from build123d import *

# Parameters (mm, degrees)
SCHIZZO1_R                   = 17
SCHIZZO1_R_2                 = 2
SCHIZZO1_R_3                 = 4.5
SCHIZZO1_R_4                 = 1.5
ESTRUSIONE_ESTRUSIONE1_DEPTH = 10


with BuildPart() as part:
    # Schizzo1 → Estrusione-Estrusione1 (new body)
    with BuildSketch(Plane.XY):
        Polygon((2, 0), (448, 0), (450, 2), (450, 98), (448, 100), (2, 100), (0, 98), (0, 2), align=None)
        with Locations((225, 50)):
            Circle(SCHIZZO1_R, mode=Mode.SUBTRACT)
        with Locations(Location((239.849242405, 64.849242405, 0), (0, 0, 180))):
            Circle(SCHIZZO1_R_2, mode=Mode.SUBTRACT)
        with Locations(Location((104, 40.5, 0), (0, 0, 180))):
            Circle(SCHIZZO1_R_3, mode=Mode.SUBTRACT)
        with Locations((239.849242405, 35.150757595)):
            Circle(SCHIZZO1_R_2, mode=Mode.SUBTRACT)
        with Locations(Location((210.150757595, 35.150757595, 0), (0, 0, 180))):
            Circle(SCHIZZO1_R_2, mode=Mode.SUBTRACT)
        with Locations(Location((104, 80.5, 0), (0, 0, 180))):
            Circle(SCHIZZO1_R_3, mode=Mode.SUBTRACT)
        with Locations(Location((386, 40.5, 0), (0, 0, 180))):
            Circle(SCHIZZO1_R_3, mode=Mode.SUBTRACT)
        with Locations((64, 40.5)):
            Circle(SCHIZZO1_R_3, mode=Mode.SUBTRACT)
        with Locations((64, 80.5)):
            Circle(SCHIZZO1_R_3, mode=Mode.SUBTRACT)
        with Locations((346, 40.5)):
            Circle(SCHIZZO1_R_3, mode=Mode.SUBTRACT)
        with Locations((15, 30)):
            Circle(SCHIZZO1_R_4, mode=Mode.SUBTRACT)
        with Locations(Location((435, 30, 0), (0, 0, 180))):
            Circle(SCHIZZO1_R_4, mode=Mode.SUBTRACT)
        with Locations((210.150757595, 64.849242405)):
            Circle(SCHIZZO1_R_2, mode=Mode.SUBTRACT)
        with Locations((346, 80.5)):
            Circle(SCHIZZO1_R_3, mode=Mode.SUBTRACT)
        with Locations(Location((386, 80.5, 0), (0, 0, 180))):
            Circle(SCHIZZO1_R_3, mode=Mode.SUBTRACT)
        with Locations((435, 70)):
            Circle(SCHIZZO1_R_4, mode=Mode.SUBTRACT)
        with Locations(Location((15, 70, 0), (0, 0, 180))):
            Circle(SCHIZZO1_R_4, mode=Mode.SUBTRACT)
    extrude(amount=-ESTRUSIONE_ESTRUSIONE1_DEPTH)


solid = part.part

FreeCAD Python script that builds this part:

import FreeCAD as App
import Part
import Sketcher

doc = App.newDocument("Part")
body = doc.addObject("PartDesign::Body", "Body")

# Sketch on XY plane
sketch1 = doc.addObject("Sketcher::SketchObject", "Sketch")
body.addObject(sketch1)
sketch1.AttachmentSupport = (doc.XY_Plane, [""])
sketch1.MapMode = "FlatFace"
sketch1.addGeometry(Part.LineSegment(App.Vector(2, 0, 0), App.Vector(448, 0, 0)), False)
sketch1.addGeometry(Part.LineSegment(App.Vector(448, 0, 0), App.Vector(450, 2, 0)), False)
sketch1.addGeometry(Part.LineSegment(App.Vector(450, 2, 0), App.Vector(450, 98, 0)), False)
sketch1.addGeometry(Part.LineSegment(App.Vector(450, 98, 0), App.Vector(448, 100, 0)), False)
sketch1.addGeometry(Part.LineSegment(App.Vector(448, 100, 0), App.Vector(2, 100, 0)), False)
sketch1.addGeometry(Part.LineSegment(App.Vector(2, 100, 0), App.Vector(0, 98, 0)), False)
sketch1.addGeometry(Part.LineSegment(App.Vector(0, 98, 0), App.Vector(0, 2, 0)), False)
sketch1.addGeometry(Part.LineSegment(App.Vector(0, 2, 0), App.Vector(2, 0, 0)), False)
sketch1.addGeometry(Part.Circle(App.Vector(15, 30, 0), App.Vector(0, 0, 1), 1.5), False)
sketch1.addGeometry(Part.Circle(App.Vector(64, 40.5, 0), App.Vector(0, 0, 1), 4.5), False)
sketch1.addGeometry(Part.Circle(App.Vector(104, 40.5, 0), App.Vector(0, 0, 1), 4.5), False)
sketch1.addGeometry(Part.Circle(App.Vector(210.2, 35.2, 0), App.Vector(0, 0, 1), 2), False)
sketch1.addGeometry(Part.Circle(App.Vector(239.8, 35.2, 0), App.Vector(0, 0, 1), 2), False)
sketch1.addGeometry(Part.Circle(App.Vector(435, 30, 0), App.Vector(0, 0, 1), 1.5), False)
sketch1.addGeometry(Part.Circle(App.Vector(346, 40.5, 0), App.Vector(0, 0, 1), 4.5), False)
sketch1.addGeometry(Part.Circle(App.Vector(386, 40.5, 0), App.Vector(0, 0, 1), 4.5), False)
sketch1.addGeometry(Part.Circle(App.Vector(225, 50, 0), App.Vector(0, 0, 1), 17), False)
sketch1.addGeometry(Part.Circle(App.Vector(15, 70, 0), App.Vector(0, 0, 1), 1.5), False)
sketch1.addGeometry(Part.Circle(App.Vector(210.2, 64.8, 0), App.Vector(0, 0, 1), 2), False)
sketch1.addGeometry(Part.Circle(App.Vector(64, 80.5, 0), App.Vector(0, 0, 1), 4.5), False)
sketch1.addGeometry(Part.Circle(App.Vector(104, 80.5, 0), App.Vector(0, 0, 1), 4.5), False)
sketch1.addGeometry(Part.Circle(App.Vector(239.8, 64.8, 0), App.Vector(0, 0, 1), 2), False)
sketch1.addGeometry(Part.Circle(App.Vector(435, 70, 0), App.Vector(0, 0, 1), 1.5), False)
sketch1.addGeometry(Part.Circle(App.Vector(346, 80.5, 0), App.Vector(0, 0, 1), 4.5), False)
sketch1.addGeometry(Part.Circle(App.Vector(386, 80.5, 0), App.Vector(0, 0, 1), 4.5), False)
sketch1.addConstraint(Sketcher.Constraint("Coincident", 0, 2, 1, 1))
sketch1.addConstraint(Sketcher.Constraint("Coincident", 1, 2, 2, 1))
sketch1.addConstraint(Sketcher.Constraint("Coincident", 2, 2, 3, 1))
sketch1.addConstraint(Sketcher.Constraint("Coincident", 3, 2, 4, 1))
sketch1.addConstraint(Sketcher.Constraint("Coincident", 4, 2, 5, 1))
sketch1.addConstraint(Sketcher.Constraint("Coincident", 5, 2, 6, 1))
sketch1.addConstraint(Sketcher.Constraint("Coincident", 6, 2, 7, 1))
sketch1.addConstraint(Sketcher.Constraint("Coincident", 7, 2, 0, 1))
sketch1.addConstraint(Sketcher.Constraint("Horizontal", 0))
sketch1.addConstraint(Sketcher.Constraint("Vertical", 2))
sketch1.addConstraint(Sketcher.Constraint("Horizontal", 4))
sketch1.addConstraint(Sketcher.Constraint("Vertical", 6))
sketch1.addConstraint(Sketcher.Constraint("Equal", 9, 10))
sketch1.addConstraint(Sketcher.Constraint("Equal", 11, 12))
sketch1.addConstraint(Sketcher.Constraint("Equal", 8, 13))
sketch1.addConstraint(Sketcher.Constraint("Equal", 10, 14))
sketch1.addConstraint(Sketcher.Constraint("Equal", 14, 15))
sketch1.addConstraint(Sketcher.Constraint("Equal", 13, 17))
sketch1.addConstraint(Sketcher.Constraint("Equal", 12, 18))
sketch1.addConstraint(Sketcher.Constraint("Equal", 15, 19))
sketch1.addConstraint(Sketcher.Constraint("Equal", 19, 20))
sketch1.addConstraint(Sketcher.Constraint("Equal", 18, 21))
sketch1.addConstraint(Sketcher.Constraint("Equal", 17, 22))
sketch1.addConstraint(Sketcher.Constraint("Equal", 20, 23))
sketch1.addConstraint(Sketcher.Constraint("Equal", 23, 24))
sketch1.addConstraint(Sketcher.Constraint("PointOnObject", 0, 2, -1))
sketch1.addConstraint(Sketcher.Constraint("PointOnObject", 5, 2, -2))
sketch1.addConstraint(Sketcher.Constraint("Perpendicular", 1, 3))
sketch1.addConstraint(Sketcher.Constraint("Perpendicular", 3, 5))
sketch1.addConstraint(Sketcher.Constraint("Perpendicular", 5, 7))
sketch1.addConstraint(Sketcher.Constraint("Horizontal", 9, 3, 10, 3))
sketch1.addConstraint(Sketcher.Constraint("Horizontal", 11, 3, 12, 3))
sketch1.addConstraint(Sketcher.Constraint("Horizontal", 8, 3, 13, 3))
sketch1.addConstraint(Sketcher.Constraint("Horizontal", 10, 3, 14, 3))
sketch1.addConstraint(Sketcher.Constraint("Horizontal", 14, 3, 15, 3))
sketch1.addConstraint(Sketcher.Constraint("Horizontal", 19, 3, 20, 3))
sketch1.addConstraint(Sketcher.Constraint("Horizontal", 18, 3, 21, 3))
sketch1.addConstraint(Sketcher.Constraint("Horizontal", 17, 3, 22, 3))
sketch1.addConstraint(Sketcher.Constraint("Horizontal", 20, 3, 23, 3))
sketch1.addConstraint(Sketcher.Constraint("Horizontal", 23, 3, 24, 3))
sketch1.addConstraint(Sketcher.Constraint("Horizontal", 2, 2, 5, 2))
sketch1.addConstraint(Sketcher.Constraint("Horizontal", 1, 2, 6, 2))
sketch1.addConstraint(Sketcher.Constraint("Vertical", 8, 3, 17, 3))
sketch1.addConstraint(Sketcher.Constraint("Vertical", 11, 3, 18, 3))
sketch1.addConstraint(Sketcher.Constraint("Vertical", 9, 3, 19, 3))
sketch1.addConstraint(Sketcher.Constraint("Vertical", 10, 3, 20, 3))
sketch1.addConstraint(Sketcher.Constraint("Vertical", 12, 3, 21, 3))
sketch1.addConstraint(Sketcher.Constraint("Vertical", 13, 3, 22, 3))
sketch1.addConstraint(Sketcher.Constraint("Vertical", 14, 3, 23, 3))
sketch1.addConstraint(Sketcher.Constraint("Vertical", 15, 3, 24, 3))
sketch1.addConstraint(Sketcher.Constraint("Vertical", 0, 2, 3, 2))
sketch1.addConstraint(Sketcher.Constraint("Vertical", 4, 2, 7, 2))
sketch1.addConstraint(Sketcher.Constraint("Diameter", 8, 3.0))
sketch1.addConstraint(Sketcher.Constraint("Diameter", 9, 9.0))
sketch1.addConstraint(Sketcher.Constraint("Diameter", 11, 4.0))
sketch1.addConstraint(Sketcher.Constraint("Diameter", 16, 34.0))
sketch1.addConstraint(Sketcher.Constraint("DistanceX", 0, 1, 0, 2, 446.0))
sketch1.addConstraint(Sketcher.Constraint("DistanceY", 2, 1, 2, 2, 96.0))
sketch1.addConstraint(Sketcher.Constraint("DistanceX", -1, 1, 8, 3, 15.0))
sketch1.addConstraint(Sketcher.Constraint("DistanceY", -1, 1, 8, 3, 30.0))
sketch1.addConstraint(Sketcher.Constraint("DistanceX", -1, 1, 9, 3, 64.0))
sketch1.addConstraint(Sketcher.Constraint("DistanceX", -1, 1, 10, 3, 104.0))
sketch1.addConstraint(Sketcher.Constraint("DistanceX", -1, 1, 13, 3, 435.0))
sketch1.addConstraint(Sketcher.Constraint("DistanceX", -1, 1, 14, 3, 346.0))
sketch1.addConstraint(Sketcher.Constraint("DistanceX", -1, 1, 15, 3, 386.0))
sketch1.addConstraint(Sketcher.Constraint("DistanceX", -1, 1, 16, 3, 225.0))
sketch1.addConstraint(Sketcher.Constraint("DistanceY", -1, 1, 16, 3, 50.0))
sketch1.addConstraint(Sketcher.Constraint("DistanceY", -1, 1, 17, 3, 70.0))
sketch1.addConstraint(Sketcher.Constraint("DistanceX", -1, 1, 0, 2, 448.0))
sketch1.addConstraint(Sketcher.Constraint("DistanceY", 9, 3, 19, 3, 40.0))
sketch1.addConstraint(Sketcher.Constraint("DistanceY", -1, 1, 9, 3, 40.5))
sketch1.addConstraint(Sketcher.Constraint("DistanceX", -1, 1, 11, 3, 210.150758))
sketch1.addConstraint(Sketcher.Constraint("DistanceY", -1, 1, 11, 3, 35.150758))
sketch1.addConstraint(Sketcher.Constraint("DistanceX", -1, 1, 12, 3, 239.849242))
sketch1.addConstraint(Sketcher.Constraint("DistanceY", -1, 1, 18, 3, 64.849242))
pad1 = doc.addObject("PartDesign::Pad", "Pad")
body.addObject(pad1)
pad1.Profile = sketch1
pad1.Length = 10
pad1.Reversed = True

doc.recompute()
